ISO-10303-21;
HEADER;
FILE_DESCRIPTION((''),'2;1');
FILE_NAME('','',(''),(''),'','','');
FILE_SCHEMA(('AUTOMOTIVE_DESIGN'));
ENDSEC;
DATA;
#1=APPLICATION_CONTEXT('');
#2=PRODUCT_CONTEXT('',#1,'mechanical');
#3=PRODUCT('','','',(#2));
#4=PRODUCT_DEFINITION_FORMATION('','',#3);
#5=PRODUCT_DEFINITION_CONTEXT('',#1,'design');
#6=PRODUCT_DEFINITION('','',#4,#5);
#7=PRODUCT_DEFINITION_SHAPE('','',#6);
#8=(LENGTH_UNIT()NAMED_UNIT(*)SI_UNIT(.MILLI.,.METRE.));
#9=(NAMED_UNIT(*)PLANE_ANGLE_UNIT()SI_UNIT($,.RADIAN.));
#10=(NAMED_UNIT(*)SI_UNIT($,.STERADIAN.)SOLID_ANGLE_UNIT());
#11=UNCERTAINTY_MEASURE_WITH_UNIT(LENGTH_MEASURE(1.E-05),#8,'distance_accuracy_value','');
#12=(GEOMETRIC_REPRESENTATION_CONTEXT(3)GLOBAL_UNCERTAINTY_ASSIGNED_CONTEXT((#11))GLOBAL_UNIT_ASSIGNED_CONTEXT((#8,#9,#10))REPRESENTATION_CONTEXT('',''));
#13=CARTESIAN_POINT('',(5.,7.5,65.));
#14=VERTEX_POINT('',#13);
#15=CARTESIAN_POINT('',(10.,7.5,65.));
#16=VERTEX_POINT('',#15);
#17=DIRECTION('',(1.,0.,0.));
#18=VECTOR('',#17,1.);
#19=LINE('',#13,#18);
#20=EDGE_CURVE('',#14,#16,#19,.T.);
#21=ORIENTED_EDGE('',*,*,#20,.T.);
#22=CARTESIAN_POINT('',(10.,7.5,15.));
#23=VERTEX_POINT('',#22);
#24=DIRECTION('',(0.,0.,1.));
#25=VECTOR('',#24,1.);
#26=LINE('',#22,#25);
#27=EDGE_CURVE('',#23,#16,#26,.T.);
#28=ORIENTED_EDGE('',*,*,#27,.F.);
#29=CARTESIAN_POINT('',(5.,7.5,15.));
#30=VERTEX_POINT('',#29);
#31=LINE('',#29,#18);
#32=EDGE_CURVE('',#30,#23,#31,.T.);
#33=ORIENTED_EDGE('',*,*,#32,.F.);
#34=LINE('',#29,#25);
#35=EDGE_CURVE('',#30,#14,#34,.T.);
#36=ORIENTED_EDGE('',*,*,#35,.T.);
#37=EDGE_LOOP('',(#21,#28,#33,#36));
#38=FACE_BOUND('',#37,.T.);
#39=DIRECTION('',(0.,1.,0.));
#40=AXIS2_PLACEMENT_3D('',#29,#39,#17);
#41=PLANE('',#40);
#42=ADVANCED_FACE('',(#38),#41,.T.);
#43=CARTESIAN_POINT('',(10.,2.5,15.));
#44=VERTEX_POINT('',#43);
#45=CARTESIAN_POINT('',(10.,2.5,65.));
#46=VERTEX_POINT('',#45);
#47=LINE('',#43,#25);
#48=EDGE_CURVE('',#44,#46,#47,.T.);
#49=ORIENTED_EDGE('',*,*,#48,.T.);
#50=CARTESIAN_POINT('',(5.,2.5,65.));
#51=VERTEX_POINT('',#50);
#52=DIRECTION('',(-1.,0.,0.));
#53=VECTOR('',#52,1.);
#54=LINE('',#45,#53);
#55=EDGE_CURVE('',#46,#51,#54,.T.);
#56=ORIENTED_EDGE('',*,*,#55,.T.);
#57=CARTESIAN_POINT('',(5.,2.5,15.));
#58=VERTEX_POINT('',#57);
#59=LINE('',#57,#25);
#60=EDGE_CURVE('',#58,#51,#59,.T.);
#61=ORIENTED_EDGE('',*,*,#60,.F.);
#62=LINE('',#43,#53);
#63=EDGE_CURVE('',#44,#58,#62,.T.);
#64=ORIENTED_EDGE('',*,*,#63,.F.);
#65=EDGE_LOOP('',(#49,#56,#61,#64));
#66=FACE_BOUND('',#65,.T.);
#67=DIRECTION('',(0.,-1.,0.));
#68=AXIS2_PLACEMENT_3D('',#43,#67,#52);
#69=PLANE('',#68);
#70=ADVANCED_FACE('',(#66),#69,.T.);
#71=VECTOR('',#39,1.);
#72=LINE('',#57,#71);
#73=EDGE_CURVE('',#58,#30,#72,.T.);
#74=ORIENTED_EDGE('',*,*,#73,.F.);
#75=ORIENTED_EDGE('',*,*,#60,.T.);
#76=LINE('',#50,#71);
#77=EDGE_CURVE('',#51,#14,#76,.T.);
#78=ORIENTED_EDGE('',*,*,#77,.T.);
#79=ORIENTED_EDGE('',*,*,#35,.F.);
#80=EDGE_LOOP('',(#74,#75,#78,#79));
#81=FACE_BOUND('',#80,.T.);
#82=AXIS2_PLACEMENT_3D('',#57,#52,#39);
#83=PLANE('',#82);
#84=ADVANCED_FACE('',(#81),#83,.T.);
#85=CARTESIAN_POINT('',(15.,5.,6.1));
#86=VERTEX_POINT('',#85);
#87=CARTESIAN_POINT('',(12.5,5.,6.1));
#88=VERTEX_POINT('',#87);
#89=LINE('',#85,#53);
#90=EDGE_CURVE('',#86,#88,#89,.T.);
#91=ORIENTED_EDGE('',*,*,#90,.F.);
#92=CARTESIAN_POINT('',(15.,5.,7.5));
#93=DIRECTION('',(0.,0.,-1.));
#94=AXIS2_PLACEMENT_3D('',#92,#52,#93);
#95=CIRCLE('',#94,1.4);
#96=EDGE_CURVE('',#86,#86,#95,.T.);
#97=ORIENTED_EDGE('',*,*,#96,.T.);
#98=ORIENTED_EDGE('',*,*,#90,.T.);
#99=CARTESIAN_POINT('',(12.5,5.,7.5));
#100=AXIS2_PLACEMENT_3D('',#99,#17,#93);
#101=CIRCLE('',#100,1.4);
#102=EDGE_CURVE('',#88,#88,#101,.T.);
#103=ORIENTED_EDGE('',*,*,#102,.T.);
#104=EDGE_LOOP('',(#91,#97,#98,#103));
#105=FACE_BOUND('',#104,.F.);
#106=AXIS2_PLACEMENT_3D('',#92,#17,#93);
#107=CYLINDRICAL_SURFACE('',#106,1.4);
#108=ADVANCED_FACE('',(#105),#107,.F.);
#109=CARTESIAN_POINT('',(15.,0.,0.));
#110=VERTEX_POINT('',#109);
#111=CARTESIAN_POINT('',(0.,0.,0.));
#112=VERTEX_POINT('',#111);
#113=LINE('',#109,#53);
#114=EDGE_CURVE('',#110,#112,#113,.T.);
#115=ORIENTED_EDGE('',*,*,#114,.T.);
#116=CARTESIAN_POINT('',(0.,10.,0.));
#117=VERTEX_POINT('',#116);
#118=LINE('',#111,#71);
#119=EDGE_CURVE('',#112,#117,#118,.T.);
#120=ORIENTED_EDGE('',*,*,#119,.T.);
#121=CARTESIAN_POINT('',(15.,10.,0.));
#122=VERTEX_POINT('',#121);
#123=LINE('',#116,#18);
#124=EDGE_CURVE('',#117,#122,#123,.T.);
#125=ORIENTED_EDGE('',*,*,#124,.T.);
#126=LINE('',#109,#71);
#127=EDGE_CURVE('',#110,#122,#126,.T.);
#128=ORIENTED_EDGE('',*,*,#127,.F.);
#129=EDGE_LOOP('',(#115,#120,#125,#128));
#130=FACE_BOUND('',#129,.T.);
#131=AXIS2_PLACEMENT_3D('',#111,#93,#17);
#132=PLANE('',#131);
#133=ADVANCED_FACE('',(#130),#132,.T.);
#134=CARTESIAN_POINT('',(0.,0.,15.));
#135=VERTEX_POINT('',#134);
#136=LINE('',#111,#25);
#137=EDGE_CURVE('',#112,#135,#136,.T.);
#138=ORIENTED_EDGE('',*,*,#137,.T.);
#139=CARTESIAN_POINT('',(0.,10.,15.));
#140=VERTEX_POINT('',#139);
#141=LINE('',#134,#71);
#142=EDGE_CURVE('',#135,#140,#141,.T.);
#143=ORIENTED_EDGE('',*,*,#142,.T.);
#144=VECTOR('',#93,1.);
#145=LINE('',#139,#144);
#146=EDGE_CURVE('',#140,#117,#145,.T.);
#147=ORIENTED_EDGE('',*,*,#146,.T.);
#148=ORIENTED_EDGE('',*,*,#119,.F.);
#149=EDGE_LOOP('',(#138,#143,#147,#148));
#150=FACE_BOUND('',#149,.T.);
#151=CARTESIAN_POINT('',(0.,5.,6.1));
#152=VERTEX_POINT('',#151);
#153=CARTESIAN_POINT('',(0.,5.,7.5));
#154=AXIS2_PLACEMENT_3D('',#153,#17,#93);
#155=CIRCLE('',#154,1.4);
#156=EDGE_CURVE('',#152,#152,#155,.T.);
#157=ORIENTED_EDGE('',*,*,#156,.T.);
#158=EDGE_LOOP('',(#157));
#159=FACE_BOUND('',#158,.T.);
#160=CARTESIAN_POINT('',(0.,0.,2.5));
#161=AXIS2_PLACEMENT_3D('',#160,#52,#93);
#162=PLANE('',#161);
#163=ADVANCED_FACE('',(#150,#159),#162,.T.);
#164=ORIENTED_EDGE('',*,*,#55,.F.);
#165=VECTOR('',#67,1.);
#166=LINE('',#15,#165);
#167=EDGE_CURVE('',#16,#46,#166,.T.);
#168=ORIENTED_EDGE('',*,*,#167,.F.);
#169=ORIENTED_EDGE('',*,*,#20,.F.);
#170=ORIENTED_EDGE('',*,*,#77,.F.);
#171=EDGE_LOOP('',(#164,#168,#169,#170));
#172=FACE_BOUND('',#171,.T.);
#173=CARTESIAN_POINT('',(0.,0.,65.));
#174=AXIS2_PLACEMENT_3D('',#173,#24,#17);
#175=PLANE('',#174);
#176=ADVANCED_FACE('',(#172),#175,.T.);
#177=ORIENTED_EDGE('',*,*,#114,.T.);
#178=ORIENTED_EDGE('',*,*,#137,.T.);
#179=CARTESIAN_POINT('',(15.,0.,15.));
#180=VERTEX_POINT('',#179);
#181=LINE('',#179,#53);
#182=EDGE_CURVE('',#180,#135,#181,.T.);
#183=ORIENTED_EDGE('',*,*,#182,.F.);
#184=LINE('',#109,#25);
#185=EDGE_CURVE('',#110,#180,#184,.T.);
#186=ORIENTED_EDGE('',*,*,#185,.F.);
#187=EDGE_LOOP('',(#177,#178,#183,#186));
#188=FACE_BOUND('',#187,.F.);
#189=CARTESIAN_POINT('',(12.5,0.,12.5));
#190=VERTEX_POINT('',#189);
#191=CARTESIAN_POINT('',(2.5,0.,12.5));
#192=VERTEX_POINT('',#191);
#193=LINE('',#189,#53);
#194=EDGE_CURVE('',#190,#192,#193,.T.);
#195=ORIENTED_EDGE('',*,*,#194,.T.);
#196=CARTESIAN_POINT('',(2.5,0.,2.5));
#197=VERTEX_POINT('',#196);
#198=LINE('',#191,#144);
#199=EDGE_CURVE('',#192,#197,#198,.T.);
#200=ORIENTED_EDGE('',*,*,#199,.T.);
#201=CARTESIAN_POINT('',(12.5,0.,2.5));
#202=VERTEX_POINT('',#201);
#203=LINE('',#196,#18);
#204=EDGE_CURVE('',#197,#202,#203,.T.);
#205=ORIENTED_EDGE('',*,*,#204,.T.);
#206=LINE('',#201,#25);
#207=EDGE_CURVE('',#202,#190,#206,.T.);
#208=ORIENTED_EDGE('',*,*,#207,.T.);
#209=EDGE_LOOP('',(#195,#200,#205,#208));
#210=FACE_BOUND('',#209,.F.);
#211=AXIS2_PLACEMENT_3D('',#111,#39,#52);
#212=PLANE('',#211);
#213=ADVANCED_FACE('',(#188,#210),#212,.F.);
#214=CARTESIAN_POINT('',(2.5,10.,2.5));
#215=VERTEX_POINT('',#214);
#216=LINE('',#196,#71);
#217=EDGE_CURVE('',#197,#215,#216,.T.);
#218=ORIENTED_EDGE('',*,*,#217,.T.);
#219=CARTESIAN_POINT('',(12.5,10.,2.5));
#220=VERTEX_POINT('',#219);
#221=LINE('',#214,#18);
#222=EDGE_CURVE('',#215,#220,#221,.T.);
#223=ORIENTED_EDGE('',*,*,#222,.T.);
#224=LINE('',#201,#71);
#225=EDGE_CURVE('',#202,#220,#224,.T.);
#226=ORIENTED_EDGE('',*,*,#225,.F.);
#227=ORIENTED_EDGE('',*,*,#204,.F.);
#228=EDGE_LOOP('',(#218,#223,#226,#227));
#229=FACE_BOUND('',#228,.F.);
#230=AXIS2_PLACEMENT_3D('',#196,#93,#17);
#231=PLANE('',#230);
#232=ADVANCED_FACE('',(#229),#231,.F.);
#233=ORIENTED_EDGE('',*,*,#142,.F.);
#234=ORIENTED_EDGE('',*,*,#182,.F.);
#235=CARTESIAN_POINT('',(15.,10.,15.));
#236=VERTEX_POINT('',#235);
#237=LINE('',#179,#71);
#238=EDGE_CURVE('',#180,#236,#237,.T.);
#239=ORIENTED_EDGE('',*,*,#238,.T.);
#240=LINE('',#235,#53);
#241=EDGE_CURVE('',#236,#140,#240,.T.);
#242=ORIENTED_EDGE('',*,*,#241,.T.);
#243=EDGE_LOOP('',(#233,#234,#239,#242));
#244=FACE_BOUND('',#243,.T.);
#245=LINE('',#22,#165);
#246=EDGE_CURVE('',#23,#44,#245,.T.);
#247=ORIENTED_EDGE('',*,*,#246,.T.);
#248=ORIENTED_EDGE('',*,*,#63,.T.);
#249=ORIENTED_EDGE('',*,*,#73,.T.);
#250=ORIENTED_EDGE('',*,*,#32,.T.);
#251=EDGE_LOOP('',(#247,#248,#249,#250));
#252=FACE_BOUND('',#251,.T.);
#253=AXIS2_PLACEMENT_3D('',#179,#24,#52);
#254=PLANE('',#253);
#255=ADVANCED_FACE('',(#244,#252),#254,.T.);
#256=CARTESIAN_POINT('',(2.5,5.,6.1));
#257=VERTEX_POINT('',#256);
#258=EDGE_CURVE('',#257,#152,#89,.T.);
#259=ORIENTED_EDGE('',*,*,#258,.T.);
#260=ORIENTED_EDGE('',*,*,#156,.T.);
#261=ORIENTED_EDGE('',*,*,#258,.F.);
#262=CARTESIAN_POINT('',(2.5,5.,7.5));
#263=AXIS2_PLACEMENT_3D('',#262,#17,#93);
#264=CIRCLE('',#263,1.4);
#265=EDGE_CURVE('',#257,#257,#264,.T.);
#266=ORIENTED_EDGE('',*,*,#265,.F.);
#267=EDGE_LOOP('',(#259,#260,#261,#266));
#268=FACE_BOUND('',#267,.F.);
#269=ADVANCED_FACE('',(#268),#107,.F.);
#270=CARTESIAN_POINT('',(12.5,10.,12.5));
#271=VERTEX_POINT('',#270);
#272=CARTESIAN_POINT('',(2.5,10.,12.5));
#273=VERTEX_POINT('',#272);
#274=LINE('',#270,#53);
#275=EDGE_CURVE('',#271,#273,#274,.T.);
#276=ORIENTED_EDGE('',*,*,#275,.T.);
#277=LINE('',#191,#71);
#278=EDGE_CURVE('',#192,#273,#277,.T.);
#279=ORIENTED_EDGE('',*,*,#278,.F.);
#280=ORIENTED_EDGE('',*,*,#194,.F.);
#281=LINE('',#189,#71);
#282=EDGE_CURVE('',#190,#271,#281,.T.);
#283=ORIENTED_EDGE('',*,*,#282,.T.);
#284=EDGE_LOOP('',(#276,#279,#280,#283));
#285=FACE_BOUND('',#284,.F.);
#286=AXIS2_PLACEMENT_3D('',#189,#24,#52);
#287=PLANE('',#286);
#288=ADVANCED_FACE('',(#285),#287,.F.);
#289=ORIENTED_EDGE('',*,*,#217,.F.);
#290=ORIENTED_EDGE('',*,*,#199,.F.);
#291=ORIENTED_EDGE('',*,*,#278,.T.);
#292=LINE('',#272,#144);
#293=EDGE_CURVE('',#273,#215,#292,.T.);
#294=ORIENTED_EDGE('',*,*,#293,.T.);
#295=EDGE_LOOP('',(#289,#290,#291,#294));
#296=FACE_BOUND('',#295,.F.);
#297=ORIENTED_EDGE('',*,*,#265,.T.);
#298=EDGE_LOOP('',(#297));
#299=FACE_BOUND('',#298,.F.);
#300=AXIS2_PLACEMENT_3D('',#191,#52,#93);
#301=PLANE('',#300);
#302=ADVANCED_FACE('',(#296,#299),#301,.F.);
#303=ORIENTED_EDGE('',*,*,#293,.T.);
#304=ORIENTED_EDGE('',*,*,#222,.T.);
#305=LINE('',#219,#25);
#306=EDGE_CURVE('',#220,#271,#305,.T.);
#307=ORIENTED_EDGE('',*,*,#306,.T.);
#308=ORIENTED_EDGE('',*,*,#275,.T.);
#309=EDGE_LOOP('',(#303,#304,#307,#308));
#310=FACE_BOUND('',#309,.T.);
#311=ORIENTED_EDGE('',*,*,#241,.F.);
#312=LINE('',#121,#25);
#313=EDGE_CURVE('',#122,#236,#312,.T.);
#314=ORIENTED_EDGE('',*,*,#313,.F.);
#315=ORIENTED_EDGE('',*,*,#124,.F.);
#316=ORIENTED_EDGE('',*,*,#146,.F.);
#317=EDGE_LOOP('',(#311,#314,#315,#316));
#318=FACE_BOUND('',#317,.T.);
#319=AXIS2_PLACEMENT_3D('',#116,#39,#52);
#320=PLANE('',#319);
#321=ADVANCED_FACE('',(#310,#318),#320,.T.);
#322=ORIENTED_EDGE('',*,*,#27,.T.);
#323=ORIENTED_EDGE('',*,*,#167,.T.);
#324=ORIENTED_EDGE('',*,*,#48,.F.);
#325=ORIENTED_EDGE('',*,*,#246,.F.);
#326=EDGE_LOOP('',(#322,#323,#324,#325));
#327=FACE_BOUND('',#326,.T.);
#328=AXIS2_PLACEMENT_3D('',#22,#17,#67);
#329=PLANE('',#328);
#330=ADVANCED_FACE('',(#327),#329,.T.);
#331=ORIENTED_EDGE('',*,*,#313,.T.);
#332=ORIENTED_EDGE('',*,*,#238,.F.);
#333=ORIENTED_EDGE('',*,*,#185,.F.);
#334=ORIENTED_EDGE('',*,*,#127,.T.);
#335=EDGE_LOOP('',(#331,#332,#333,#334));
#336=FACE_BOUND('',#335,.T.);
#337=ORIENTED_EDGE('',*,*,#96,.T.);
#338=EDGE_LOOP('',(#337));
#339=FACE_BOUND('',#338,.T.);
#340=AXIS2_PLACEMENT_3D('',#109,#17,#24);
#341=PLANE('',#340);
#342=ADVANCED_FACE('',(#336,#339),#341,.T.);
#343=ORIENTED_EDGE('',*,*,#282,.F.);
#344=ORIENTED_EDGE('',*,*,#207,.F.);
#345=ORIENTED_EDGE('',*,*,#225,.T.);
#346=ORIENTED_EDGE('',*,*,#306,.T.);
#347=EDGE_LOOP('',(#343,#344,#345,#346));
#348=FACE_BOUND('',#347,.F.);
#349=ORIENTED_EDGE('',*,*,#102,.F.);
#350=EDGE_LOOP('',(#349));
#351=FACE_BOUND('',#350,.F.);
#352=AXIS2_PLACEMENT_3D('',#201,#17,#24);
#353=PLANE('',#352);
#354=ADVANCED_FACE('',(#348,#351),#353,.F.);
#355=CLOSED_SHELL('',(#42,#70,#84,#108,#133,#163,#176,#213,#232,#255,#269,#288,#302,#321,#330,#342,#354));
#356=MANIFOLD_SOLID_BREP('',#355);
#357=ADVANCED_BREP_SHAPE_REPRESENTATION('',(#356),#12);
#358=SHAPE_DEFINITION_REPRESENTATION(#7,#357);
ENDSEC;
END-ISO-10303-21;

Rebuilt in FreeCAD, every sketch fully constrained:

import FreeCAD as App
import Part
import Sketcher
Q = App.Units.Quantity


def add_polygon(sketch, points):
    """Adds a closed chain of lines whose ends are joined by coincident constraints."""
    first, n = sketch.GeometryCount, len(points)
    for a, b in zip(points, points[1:] + points[:1]):
        sketch.addGeometry(Part.LineSegment(App.Vector(*a, 0), App.Vector(*b, 0)), False)
    for i in range(n):
        sketch.addConstraint(Sketcher.Constraint("Coincident", first + i, 2, first + (i + 1) % n, 1))

doc = App.newDocument("Part")
body = doc.addObject("PartDesign::Body", "Body")

# Sketch on XZ plane
sketch1 = body.newObject("Sketcher::SketchObject", "Sketch")
sketch1.AttachmentSupport = (doc.getObject("XZ_Plane"), [""])
sketch1.MapMode = "FlatFace"
add_polygon(sketch1, [(0, 0), (0, 15), (15, 15), (15, 0)])  # lines 0-3
add_polygon(sketch1, [(12, 2), (12, 12), (2, 12), (2, 2)])  # lines 4-7
sketch1.addConstraint(Sketcher.Constraint("Vertical", 0))
sketch1.addConstraint(Sketcher.Constraint("Horizontal", 1))
sketch1.addConstraint(Sketcher.Constraint("Vertical", 2))
sketch1.addConstraint(Sketcher.Constraint("Horizontal", 3))
sketch1.addConstraint(Sketcher.Constraint("Vertical", 4))
sketch1.addConstraint(Sketcher.Constraint("Horizontal", 5))
sketch1.addConstraint(Sketcher.Constraint("Vertical", 6))
sketch1.addConstraint(Sketcher.Constraint("Horizontal", 7))
sketch1.addConstraint(Sketcher.Constraint("Coincident", 3, 2, -1, 1))
sketch1.addConstraint(Sketcher.Constraint("Equal", 3, 0))
sketch1.addConstraint(Sketcher.Constraint("Equal", 7, 4))
sketch1.addConstraint(Sketcher.Constraint("DistanceX", 1, 1, 1, 2, Q("15 mm")))
sketch1.addConstraint(Sketcher.Constraint("DistanceX", 5, 2, 5, 1, Q("10 mm")))
sketch1.addConstraint(Sketcher.Constraint("DistanceX", -1, 1, 5, 2, Q("2.5 mm")))
sketch1.addConstraint(Sketcher.Constraint("DistanceY", -1, 1, 6, 2, Q("2.5 mm")))
pad1 = body.newObject("PartDesign::Pad", "Pad")
pad1.Profile = sketch1
pad1.Length = 10
pad1.Reversed = True

# Sketch on YZ plane
sketch2 = body.newObject("Sketcher::SketchObject", "Sketch001")
sketch2.AttachmentSupport = (doc.getObject("YZ_Plane"), [""])
sketch2.MapMode = "FlatFace"
sketch2.AttachmentOffset = App.Placement(App.Vector(0, 0, 15), App.Rotation())
sketch2.addGeometry(Part.Circle(App.Vector(5, 7.5, 0), App.Vector(0, 0, 1), 1.4), False)
sketch2.addConstraint(Sketcher.Constraint("Diameter", 0, Q("2.8 mm")))
sketch2.addConstraint(Sketcher.Constraint("DistanceX", -1, 1, 0, 3, Q("5 mm")))
sketch2.addConstraint(Sketcher.Constraint("DistanceY", -1, 1, 0, 3, Q("7.5 mm")))
pocket1 = body.newObject("PartDesign::Pocket", "Pocket")
pocket1.Profile = sketch2
pocket1.Type = "ThroughAll"

# Sketch on XY plane
sketch3 = body.newObject("Sketcher::SketchObject", "Sketch002")
sketch3.AttachmentSupport = (doc.getObject("XY_Plane"), [""])
sketch3.MapMode = "FlatFace"
sketch3.AttachmentOffset = App.Placement(App.Vector(0, 0, 15), App.Rotation())
add_polygon(sketch3, [(10, 8), (5, 8), (5, 2), (10, 2)])  # lines 0-3
sketch3.addConstraint(Sketcher.Constraint("Horizontal", 0))
sketch3.addConstraint(Sketcher.Constraint("Vertical", 1))
sketch3.addConstraint(Sketcher.Constraint("Horizontal", 2))
sketch3.addConstraint(Sketcher.Constraint("Vertical", 3))
sketch3.addConstraint(Sketcher.Constraint("Equal", 2, 1))
sketch3.addConstraint(Sketcher.Constraint("DistanceX", 0, 2, 0, 1, Q("5 mm")))
sketch3.addConstraint(Sketcher.Constraint("DistanceX", -1, 1, 0, 2, Q("5 mm")))
sketch3.addConstraint(Sketcher.Constraint("DistanceY", -1, 1, 1, 2, Q("2.5 mm")))
pad2 = body.newObject("PartDesign::Pad", "Pad001")
pad2.Profile = sketch3
pad2.Length = 50

doc.recompute()
